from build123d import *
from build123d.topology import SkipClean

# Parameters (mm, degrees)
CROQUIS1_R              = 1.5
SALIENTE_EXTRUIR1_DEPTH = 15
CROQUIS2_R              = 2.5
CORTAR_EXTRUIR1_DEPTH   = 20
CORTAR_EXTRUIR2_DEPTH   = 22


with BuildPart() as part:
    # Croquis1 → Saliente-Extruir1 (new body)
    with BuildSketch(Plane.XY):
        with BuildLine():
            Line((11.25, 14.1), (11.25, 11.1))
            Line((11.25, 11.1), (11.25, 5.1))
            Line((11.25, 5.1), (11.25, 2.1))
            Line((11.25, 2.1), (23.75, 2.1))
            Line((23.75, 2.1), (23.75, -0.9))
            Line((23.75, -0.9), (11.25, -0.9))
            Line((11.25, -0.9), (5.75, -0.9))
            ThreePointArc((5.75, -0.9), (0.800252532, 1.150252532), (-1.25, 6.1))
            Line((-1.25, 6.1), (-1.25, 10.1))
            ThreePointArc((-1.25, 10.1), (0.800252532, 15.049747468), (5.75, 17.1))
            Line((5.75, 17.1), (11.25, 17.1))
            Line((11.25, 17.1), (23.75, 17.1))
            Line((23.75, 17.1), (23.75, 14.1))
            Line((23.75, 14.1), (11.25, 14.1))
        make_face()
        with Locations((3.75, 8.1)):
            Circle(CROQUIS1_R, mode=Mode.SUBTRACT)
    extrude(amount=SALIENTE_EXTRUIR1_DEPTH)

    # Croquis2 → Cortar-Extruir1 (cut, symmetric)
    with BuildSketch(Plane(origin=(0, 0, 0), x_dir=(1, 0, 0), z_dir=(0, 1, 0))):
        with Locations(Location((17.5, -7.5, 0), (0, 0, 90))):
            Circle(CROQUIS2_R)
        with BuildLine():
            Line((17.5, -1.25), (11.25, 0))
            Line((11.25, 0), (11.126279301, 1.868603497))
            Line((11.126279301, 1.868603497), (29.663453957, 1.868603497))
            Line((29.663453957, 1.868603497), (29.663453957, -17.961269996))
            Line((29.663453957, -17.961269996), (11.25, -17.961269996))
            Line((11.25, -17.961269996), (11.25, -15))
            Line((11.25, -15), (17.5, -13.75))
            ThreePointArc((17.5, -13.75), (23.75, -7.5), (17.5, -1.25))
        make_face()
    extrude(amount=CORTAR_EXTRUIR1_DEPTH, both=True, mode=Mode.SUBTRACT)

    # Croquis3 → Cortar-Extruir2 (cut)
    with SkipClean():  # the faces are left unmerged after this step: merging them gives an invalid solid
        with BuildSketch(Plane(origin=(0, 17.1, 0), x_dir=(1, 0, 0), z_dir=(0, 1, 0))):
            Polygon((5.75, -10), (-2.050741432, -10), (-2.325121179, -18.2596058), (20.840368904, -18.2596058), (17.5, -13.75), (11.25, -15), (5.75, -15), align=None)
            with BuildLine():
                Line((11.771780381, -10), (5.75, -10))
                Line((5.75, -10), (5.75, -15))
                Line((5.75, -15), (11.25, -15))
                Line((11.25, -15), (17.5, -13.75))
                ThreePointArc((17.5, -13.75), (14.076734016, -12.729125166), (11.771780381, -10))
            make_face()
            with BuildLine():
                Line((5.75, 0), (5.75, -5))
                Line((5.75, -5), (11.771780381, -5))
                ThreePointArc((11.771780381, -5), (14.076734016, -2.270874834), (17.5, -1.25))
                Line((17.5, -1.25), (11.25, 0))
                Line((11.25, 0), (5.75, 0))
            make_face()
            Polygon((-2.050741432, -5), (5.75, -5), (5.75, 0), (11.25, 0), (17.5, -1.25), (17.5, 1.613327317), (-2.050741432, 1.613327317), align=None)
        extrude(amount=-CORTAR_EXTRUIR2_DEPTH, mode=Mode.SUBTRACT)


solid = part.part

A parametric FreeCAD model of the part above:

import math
import FreeCAD as App
import Part
import Sketcher

V = App.Vector

doc = App.newDocument("Part")
params = doc.addObject("Spreadsheet::Sheet", "Params")
for row, (alias, value) in enumerate([
    ("sketch1_diameter", "3 mm"),
    ("sketch1_radius", "7 mm"),
    ("sketch1_width", "18 mm"),
    ("sketch1_height", "12 mm"),
    ("sketch1_height2", "3 mm"),
    ("pad1_length", "15 mm"),
    ("sketch2_diameter", "5 mm"),
    ("sketch2_radius", "6.25 mm"),
    ("pocket1_length", "40 mm"),
    ("sketch3_height", "5 mm"),
    ("sketch3_radius", "6.25 mm"),
    ("sketch3_width", "5.5 mm"),
    ("pocket2_length", "22 mm"),
], start=1):
    params.set(f"A{row}", alias)
    params.set(f"B{row}", "=" + value)
    params.setAlias(f"B{row}", alias)

body = doc.addObject("PartDesign::Body", "Body")

sketch1 = doc.addObject("Sketcher::SketchObject", "Sketch")
body.addObject(sketch1)
sketch1.AttachmentSupport = (doc.XY_Plane, [""])
sketch1.MapMode = "FlatFace"
sketch1.addGeometry([
    Part.LineSegment(V(11.2, 2.1, 0), V(11.2, 14.1, 0)),
    Part.LineSegment(V(11.2, 14.1, 0), V(23.8, 14.1, 0)),
    Part.LineSegment(V(23.8, 14.1, 0), V(23.8, 17.1, 0)),
    Part.LineSegment(V(23.8, 17.1, 0), V(5.8, 17.1, 0)),
    Part.ArcOfCircle(Part.Circle(V(5.8, 10.1, 0), V(0, 0, 1), 7), math.radians(90), math.radians(180)),
    Part.LineSegment(V(-1.2, 10.1, 0), V(-1.2, 6.1, 0)),
    Part.ArcOfCircle(Part.Circle(V(5.8, 6.1, 0), V(0, 0, 1), 7), math.radians(-180), math.radians(-90)),
    Part.LineSegment(V(5.8, -0.9, 0), V(23.8, -0.9, 0)),
    Part.LineSegment(V(23.8, -0.9, 0), V(23.8, 2.1, 0)),
    Part.LineSegment(V(23.8, 2.1, 0), V(11.2, 2.1, 0)),
    Part.Circle(V(3.8, 8.1, 0), V(0, 0, 1), 1.5),
], False)
sketch1.addConstraint([
    Sketcher.Constraint("Coincident", 0, 2, 1, 1),
    Sketcher.Constraint("Coincident", 1, 2, 2, 1),
    Sketcher.Constraint("Coincident", 2, 2, 3, 1),
    Sketcher.Constraint("Tangent", 3, 2, 4, 1),
    Sketcher.Constraint("Tangent", 4, 2, 5, 1),
    Sketcher.Constraint("Tangent", 5, 2, 6, 1),
    Sketcher.Constraint("Tangent", 6, 2, 7, 1),
    Sketcher.Constraint("Coincident", 7, 2, 8, 1),
    Sketcher.Constraint("Coincident", 8, 2, 9, 1),
    Sketcher.Constraint("Coincident", 9, 2, 0, 1),
    Sketcher.Constraint("Vertical", 0),
    Sketcher.Constraint("Horizontal", 1),
    Sketcher.Constraint("Vertical", 2),
    Sketcher.Constraint("Horizontal", 3),
    Sketcher.Constraint("Vertical", 5),
    Sketcher.Constraint("Horizontal", 7),
    Sketcher.Constraint("Vertical", 8),
    Sketcher.Constraint("Horizontal", 9),
    Sketcher.Constraint("Equal", 4, 6),
    Sketcher.Constraint("Vertical", 2, 2, 7, 2),
    Sketcher.Constraint("Equal", 2, 8),
    Sketcher.Constraint("Diameter", 10, 3.0),
    Sketcher.Constraint("Radius", 4, 7.0),
    Sketcher.Constraint("DistanceX", 3, 2, 3, 1, 18.0),
    Sketcher.Constraint("DistanceY", 0, 1, 0, 2, 12.0),
    Sketcher.Constraint("DistanceY", 2, 1, 2, 2, 3.0),
    Sketcher.Constraint("DistanceX", 1, 1, 1, 2, 12.5),
    Sketcher.Constraint("DistanceX", 10, 3, 4, 3, 2.0),
    Sketcher.Constraint("DistanceY", 10, 3, 4, 3, 2.0),
    Sketcher.Constraint("DistanceY", -1, 1, 4, 3, 10.1),
    Sketcher.Constraint("DistanceX", -1, 1, 4, 3, 5.75),
])
sketch1.setExpression("Constraints[21]", "Params.sketch1_diameter")
sketch1.setExpression("Constraints[22]", "Params.sketch1_radius")
sketch1.setExpression("Constraints[23]", "Params.sketch1_width")
sketch1.setExpression("Constraints[24]", "Params.sketch1_height")
sketch1.setExpression("Constraints[25]", "Params.sketch1_height2")
pad1 = doc.addObject("PartDesign::Pad", "Pad")
body.addObject(pad1)
pad1.Profile = sketch1
pad1.setExpression("Length", "Params.pad1_length")

sketch2 = doc.addObject("Sketcher::SketchObject", "Sketch001")
body.addObject(sketch2)
sketch2.AttachmentSupport = (doc.XZ_Plane, [""])
sketch2.MapMode = "FlatFace"
sketch2.addGeometry([
    Part.Circle(V(17.5, 7.5, 0), V(0, 0, 1), 2.5),
    Part.LineSegment(V(11.2, 0, 0), V(17.5, 1.2, 0)),
    Part.ArcOfCircle(Part.Circle(V(17.5, 7.5, 0), V(0, 0, 1), 6.2), math.radians(-90), math.radians(90)),
    Part.LineSegment(V(17.5, 13.8, 0), V(11.2, 15, 0)),
    Part.LineSegment(V(11.2, 15, 0), V(11.2, 18, 0)),
    Part.LineSegment(V(11.2, 18, 0), V(29.7, 18, 0)),
    Part.LineSegment(V(29.7, 18, 0), V(29.7, -1.9, 0)),
    Part.LineSegment(V(29.7, -1.9, 0), V(11.1, -1.9, 0)),
    Part.LineSegment(V(11.1, -1.9, 0), V(11.2, 0, 0)),
], False)
sketch2.addConstraint([
    Sketcher.Constraint("Coincident", 1, 2, 2, 1),
    Sketcher.Constraint("Coincident", 2, 2, 3, 1),
    Sketcher.Constraint("Coincident", 3, 2, 4, 1),
    Sketcher.Constraint("Coincident", 4, 2, 5, 1),
    Sketcher.Constraint("Coincident", 5, 2, 6, 1),
    Sketcher.Constraint("Coincident", 6, 2, 7, 1),
    Sketcher.Constraint("Coincident", 7, 2, 8, 1),
    Sketcher.Constraint("Coincident", 8, 2, 1, 1),
    Sketcher.Constraint("Vertical", 4),
    Sketcher.Constraint("Horizontal", 5),
    Sketcher.Constraint("Vertical", 6),
    Sketcher.Constraint("Horizontal", 7),
    Sketcher.Constraint("Coincident", 2, 3, 0, 3),
    Sketcher.Constraint("PointOnObject", 8, 2, -1),
    Sketcher.Constraint("Vertical", 2, 3, 1, 2),
    Sketcher.Constraint("Vertical", 1, 2, 2, 2),
    Sketcher.Constraint("Vertical", 4, 2, 8, 2),
    Sketcher.Constraint("Equal", 1, 3),
    Sketcher.Constraint("Diameter", 0, 5.0),
    Sketcher.Constraint("Radius", 2, 6.25),
    Sketcher.Constraint("DistanceY", -1, 1, 3, 2, 15.0),
    Sketcher.Constraint("DistanceX", -1, 1, 0, 3, 17.5),
    Sketcher.Constraint("DistanceX", -1, 1, 3, 2, 11.25),
    Sketcher.Constraint("DistanceY", 4, 1, 4, 2, 2.96127),
    Sketcher.Constraint("DistanceX", 5, 1, 5, 2, 18.413454),
    Sketcher.Constraint("DistanceX", 7, 2, 7, 1, 18.537175),
    Sketcher.Constraint("DistanceY", 6, 2, 6, 1, 19.829873),
])
sketch2.setExpression("Constraints[18]", "Params.sketch2_diameter")
sketch2.setExpression("Constraints[19]", "Params.sketch2_radius")
pocket1 = doc.addObject("PartDesign::Pocket", "Pocket")
body.addObject(pocket1)
pocket1.Profile = sketch2
pocket1.setExpression("Length", "Params.pocket1_length")
pocket1.Midplane = True

sketch3 = doc.addObject("Sketcher::SketchObject", "Sketch002")
body.addObject(sketch3)
sketch3.AttachmentSupport = (doc.XZ_Plane, [""])
sketch3.MapMode = "FlatFace"
sketch3.AttachmentOffset = App.Placement(V(0, 0, -17.1), App.Rotation())
sketch3.addGeometry([
    Part.LineSegment(V(5.8, 10, 0), V(-2.1, 10, 0)),
    Part.LineSegment(V(-2.1, 10, 0), V(-2.3, 18.3, 0)),
    Part.LineSegment(V(-2.3, 18.3, 0), V(20.8, 18.3, 0)),
    Part.LineSegment(V(20.8, 18.3, 0), V(17.5, 13.8, 0)),
    Part.LineSegment(V(17.5, 13.8, 0), V(11.2, 15, 0)),
    Part.LineSegment(V(11.2, 15, 0), V(5.8, 15, 0)),
    Part.LineSegment(V(5.8, 15, 0), V(5.8, 10, 0)),
    Part.LineSegment(V(11.8, 10, 0), V(5.8, 10, 0)),
    Part.LineSegment(V(5.8, 10, 0), V(5.8, 15, 0)),
    Part.LineSegment(V(5.8, 15, 0), V(11.2, 15, 0)),
    Part.LineSegment(V(11.2, 15, 0), V(17.5, 13.8, 0)),
    Part.ArcOfCircle(Part.Circle(V(17.5, 7.5, 0), V(0, 0, 1), 6.3), math.radians(90), math.radians(156)),
    Part.LineSegment(V(5.8, 0, 0), V(5.8, 5, 0)),
    Part.LineSegment(V(5.8, 5, 0), V(11.8, 5, 0)),
    Part.ArcOfCircle(Part.Circle(V(17.5, 7.5, 0), V(0, 0, 1), 6.3), math.radians(-156), math.radians(-90)),
    Part.LineSegment(V(17.5, 1.2, 0), V(11.2, 0, 0)),
    Part.LineSegment(V(11.2, 0, 0), V(5.8, 0, 0)),
    Part.LineSegment(V(-2.1, 5, 0), V(5.8, 5, 0)),
    Part.LineSegment(V(5.8, 5, 0), V(5.8, 0, 0)),
    Part.LineSegment(V(5.8, 0, 0), V(11.2, 0, 0)),
    Part.LineSegment(V(11.2, 0, 0), V(17.5, 1.2, 0)),
    Part.LineSegment(V(17.5, 1.2, 0), V(17.5, -1.6, 0)),
    Part.LineSegment(V(17.5, -1.6, 0), V(-2.1, -1.6, 0)),
    Part.LineSegment(V(-2.1, -1.6, 0), V(-2.1, 5, 0)),
], False)
sketch3.addConstraint([
    Sketcher.Constraint("Coincident", 0, 2, 1, 1),
    Sketcher.Constraint("Coincident", 1, 2, 2, 1),
    Sketcher.Constraint("Coincident", 2, 2, 3, 1),
    Sketcher.Constraint("Coincident", 3, 2, 4, 1),
    Sketcher.Constraint("Coincident", 4, 2, 5, 1),
    Sketcher.Constraint("Coincident", 5, 2, 6, 1),
    Sketcher.Constraint("Coincident", 6, 2, 0, 1),
    Sketcher.Constraint("Coincident", 7, 2, 8, 1),
    Sketcher.Constraint("Coincident", 8, 2, 9, 1),
    Sketcher.Constraint("Coincident", 9, 2, 10, 1),
    Sketcher.Constraint("Coincident", 10, 2, 11, 1),
    Sketcher.Constraint("Coincident", 11, 2, 7, 1),
    Sketcher.Constraint("Coincident", 12, 2, 13, 1),
    Sketcher.Constraint("Coincident", 13, 2, 14, 1),
    Sketcher.Constraint("Coincident", 14, 2, 15, 1),
    Sketcher.Constraint("Coincident", 15, 2, 16, 1),
    Sketcher.Constraint("Coincident", 16, 2, 12, 1),
    Sketcher.Constraint("Coincident", 17, 2, 18, 1),
    Sketcher.Constraint("Coincident", 18, 2, 19, 1),
    Sketcher.Constraint("Coincident", 19, 2, 20, 1),
    Sketcher.Constraint("Coincident", 20, 2, 21, 1),
    Sketcher.Constraint("Coincident", 21, 2, 22, 1),
    Sketcher.Constraint("Coincident", 22, 2, 23, 1),
    Sketcher.Constraint("Coincident", 23, 2, 17, 1),
    Sketcher.Constraint("Horizontal", 0),
    Sketcher.Constraint("Horizontal", 2),
    Sketcher.Constraint("Horizontal", 5),
    Sketcher.Constraint("Vertical", 6),
    Sketcher.Constraint("Horizontal", 7),
    Sketcher.Constraint("Vertical", 8),
    Sketcher.Constraint("Horizontal", 9),
    Sketcher.Constraint("Vertical", 12),
    Sketcher.Constraint("Horizontal", 13),
    Sketcher.Constraint("Horizontal", 16),
    Sketcher.Constraint("Horizontal", 17),
    Sketcher.Constraint("Vertical", 18),
    Sketcher.Constraint("Horizontal", 19),
    Sketcher.Constraint("Vertical", 21),
    Sketcher.Constraint("Horizontal", 22),
    Sketcher.Constraint("Vertical", 23),
    Sketcher.Constraint("Coincident", 14, 3, 11, 3),
    Sketcher.Constraint("Coincident", 7, 2, 6, 2),
    Sketcher.Constraint("Coincident", 9, 2, 4, 2),
    Sketcher.Constraint("Coincident", 10, 2, 3, 2),
    Sketcher.Constraint("Coincident", 17, 2, 12, 2),
    Sketcher.Constraint("Coincident", 19, 2, 15, 2),
    Sketcher.Constraint("Coincident", 20, 2, 14, 2),
    Sketcher.Constraint("Equal", 11, 14),
    Sketcher.Constraint("PointOnObject", 15, 2, -1),
    Sketcher.Constraint("Vertical", 14, 3, 3, 2),
    Sketcher.Constraint("Vertical", 8, 2, 12, 2),
    Sketcher.Constraint("Vertical", 11, 2, 13, 2),
    Sketcher.Constraint("Vertical", 10, 2, 14, 2),
    Sketcher.Constraint("Vertical", 9, 2, 15, 2),
    Sketcher.Constraint("Vertical", 0, 2, 22, 2),
    Sketcher.Constraint("Equal", 8, 12),
    Sketcher.Constraint("DistanceY", 6, 2, 6, 1, 5.0),
    Sketcher.Constraint("Radius", 11, 6.25),
    Sketcher.Constraint("DistanceX", 5, 2, 5, 1, 5.5),
    Sketcher.Constraint("DistanceY", -1, 1, 0, 2, 10.0),
    Sketcher.Constraint("DistanceX", -1, 1, 11, 3, 17.5),
    Sketcher.Constraint("DistanceX", -1, 1, 4, 2, 11.25),
    Sketcher.Constraint("DistanceX", 0, 2, 0, 1, 7.800741),
    Sketcher.Constraint("DistanceX", 2, 1, 2, 2, 23.16549),
    Sketcher.Constraint("Distance", 1, 8.264162),
    Sketcher.Constraint("DistanceY", 21, 2, 21, 1, 2.863327),
    Sketcher.Constraint("DistanceX", 1, 2, -1, 1, 2.325121),
])
sketch3.setExpression("Constraints[56]", "Params.sketch3_height")
sketch3.setExpression("Constraints[57]", "Params.sketch3_radius")
sketch3.setExpression("Constraints[58]", "Params.sketch3_width")
pocket2 = doc.addObject("PartDesign::Pocket", "Pocket001")
body.addObject(pocket2)
pocket2.Profile = sketch3
pocket2.setExpression("Length", "Params.pocket2_length")
pocket2.Reversed = True

doc.recompute()
